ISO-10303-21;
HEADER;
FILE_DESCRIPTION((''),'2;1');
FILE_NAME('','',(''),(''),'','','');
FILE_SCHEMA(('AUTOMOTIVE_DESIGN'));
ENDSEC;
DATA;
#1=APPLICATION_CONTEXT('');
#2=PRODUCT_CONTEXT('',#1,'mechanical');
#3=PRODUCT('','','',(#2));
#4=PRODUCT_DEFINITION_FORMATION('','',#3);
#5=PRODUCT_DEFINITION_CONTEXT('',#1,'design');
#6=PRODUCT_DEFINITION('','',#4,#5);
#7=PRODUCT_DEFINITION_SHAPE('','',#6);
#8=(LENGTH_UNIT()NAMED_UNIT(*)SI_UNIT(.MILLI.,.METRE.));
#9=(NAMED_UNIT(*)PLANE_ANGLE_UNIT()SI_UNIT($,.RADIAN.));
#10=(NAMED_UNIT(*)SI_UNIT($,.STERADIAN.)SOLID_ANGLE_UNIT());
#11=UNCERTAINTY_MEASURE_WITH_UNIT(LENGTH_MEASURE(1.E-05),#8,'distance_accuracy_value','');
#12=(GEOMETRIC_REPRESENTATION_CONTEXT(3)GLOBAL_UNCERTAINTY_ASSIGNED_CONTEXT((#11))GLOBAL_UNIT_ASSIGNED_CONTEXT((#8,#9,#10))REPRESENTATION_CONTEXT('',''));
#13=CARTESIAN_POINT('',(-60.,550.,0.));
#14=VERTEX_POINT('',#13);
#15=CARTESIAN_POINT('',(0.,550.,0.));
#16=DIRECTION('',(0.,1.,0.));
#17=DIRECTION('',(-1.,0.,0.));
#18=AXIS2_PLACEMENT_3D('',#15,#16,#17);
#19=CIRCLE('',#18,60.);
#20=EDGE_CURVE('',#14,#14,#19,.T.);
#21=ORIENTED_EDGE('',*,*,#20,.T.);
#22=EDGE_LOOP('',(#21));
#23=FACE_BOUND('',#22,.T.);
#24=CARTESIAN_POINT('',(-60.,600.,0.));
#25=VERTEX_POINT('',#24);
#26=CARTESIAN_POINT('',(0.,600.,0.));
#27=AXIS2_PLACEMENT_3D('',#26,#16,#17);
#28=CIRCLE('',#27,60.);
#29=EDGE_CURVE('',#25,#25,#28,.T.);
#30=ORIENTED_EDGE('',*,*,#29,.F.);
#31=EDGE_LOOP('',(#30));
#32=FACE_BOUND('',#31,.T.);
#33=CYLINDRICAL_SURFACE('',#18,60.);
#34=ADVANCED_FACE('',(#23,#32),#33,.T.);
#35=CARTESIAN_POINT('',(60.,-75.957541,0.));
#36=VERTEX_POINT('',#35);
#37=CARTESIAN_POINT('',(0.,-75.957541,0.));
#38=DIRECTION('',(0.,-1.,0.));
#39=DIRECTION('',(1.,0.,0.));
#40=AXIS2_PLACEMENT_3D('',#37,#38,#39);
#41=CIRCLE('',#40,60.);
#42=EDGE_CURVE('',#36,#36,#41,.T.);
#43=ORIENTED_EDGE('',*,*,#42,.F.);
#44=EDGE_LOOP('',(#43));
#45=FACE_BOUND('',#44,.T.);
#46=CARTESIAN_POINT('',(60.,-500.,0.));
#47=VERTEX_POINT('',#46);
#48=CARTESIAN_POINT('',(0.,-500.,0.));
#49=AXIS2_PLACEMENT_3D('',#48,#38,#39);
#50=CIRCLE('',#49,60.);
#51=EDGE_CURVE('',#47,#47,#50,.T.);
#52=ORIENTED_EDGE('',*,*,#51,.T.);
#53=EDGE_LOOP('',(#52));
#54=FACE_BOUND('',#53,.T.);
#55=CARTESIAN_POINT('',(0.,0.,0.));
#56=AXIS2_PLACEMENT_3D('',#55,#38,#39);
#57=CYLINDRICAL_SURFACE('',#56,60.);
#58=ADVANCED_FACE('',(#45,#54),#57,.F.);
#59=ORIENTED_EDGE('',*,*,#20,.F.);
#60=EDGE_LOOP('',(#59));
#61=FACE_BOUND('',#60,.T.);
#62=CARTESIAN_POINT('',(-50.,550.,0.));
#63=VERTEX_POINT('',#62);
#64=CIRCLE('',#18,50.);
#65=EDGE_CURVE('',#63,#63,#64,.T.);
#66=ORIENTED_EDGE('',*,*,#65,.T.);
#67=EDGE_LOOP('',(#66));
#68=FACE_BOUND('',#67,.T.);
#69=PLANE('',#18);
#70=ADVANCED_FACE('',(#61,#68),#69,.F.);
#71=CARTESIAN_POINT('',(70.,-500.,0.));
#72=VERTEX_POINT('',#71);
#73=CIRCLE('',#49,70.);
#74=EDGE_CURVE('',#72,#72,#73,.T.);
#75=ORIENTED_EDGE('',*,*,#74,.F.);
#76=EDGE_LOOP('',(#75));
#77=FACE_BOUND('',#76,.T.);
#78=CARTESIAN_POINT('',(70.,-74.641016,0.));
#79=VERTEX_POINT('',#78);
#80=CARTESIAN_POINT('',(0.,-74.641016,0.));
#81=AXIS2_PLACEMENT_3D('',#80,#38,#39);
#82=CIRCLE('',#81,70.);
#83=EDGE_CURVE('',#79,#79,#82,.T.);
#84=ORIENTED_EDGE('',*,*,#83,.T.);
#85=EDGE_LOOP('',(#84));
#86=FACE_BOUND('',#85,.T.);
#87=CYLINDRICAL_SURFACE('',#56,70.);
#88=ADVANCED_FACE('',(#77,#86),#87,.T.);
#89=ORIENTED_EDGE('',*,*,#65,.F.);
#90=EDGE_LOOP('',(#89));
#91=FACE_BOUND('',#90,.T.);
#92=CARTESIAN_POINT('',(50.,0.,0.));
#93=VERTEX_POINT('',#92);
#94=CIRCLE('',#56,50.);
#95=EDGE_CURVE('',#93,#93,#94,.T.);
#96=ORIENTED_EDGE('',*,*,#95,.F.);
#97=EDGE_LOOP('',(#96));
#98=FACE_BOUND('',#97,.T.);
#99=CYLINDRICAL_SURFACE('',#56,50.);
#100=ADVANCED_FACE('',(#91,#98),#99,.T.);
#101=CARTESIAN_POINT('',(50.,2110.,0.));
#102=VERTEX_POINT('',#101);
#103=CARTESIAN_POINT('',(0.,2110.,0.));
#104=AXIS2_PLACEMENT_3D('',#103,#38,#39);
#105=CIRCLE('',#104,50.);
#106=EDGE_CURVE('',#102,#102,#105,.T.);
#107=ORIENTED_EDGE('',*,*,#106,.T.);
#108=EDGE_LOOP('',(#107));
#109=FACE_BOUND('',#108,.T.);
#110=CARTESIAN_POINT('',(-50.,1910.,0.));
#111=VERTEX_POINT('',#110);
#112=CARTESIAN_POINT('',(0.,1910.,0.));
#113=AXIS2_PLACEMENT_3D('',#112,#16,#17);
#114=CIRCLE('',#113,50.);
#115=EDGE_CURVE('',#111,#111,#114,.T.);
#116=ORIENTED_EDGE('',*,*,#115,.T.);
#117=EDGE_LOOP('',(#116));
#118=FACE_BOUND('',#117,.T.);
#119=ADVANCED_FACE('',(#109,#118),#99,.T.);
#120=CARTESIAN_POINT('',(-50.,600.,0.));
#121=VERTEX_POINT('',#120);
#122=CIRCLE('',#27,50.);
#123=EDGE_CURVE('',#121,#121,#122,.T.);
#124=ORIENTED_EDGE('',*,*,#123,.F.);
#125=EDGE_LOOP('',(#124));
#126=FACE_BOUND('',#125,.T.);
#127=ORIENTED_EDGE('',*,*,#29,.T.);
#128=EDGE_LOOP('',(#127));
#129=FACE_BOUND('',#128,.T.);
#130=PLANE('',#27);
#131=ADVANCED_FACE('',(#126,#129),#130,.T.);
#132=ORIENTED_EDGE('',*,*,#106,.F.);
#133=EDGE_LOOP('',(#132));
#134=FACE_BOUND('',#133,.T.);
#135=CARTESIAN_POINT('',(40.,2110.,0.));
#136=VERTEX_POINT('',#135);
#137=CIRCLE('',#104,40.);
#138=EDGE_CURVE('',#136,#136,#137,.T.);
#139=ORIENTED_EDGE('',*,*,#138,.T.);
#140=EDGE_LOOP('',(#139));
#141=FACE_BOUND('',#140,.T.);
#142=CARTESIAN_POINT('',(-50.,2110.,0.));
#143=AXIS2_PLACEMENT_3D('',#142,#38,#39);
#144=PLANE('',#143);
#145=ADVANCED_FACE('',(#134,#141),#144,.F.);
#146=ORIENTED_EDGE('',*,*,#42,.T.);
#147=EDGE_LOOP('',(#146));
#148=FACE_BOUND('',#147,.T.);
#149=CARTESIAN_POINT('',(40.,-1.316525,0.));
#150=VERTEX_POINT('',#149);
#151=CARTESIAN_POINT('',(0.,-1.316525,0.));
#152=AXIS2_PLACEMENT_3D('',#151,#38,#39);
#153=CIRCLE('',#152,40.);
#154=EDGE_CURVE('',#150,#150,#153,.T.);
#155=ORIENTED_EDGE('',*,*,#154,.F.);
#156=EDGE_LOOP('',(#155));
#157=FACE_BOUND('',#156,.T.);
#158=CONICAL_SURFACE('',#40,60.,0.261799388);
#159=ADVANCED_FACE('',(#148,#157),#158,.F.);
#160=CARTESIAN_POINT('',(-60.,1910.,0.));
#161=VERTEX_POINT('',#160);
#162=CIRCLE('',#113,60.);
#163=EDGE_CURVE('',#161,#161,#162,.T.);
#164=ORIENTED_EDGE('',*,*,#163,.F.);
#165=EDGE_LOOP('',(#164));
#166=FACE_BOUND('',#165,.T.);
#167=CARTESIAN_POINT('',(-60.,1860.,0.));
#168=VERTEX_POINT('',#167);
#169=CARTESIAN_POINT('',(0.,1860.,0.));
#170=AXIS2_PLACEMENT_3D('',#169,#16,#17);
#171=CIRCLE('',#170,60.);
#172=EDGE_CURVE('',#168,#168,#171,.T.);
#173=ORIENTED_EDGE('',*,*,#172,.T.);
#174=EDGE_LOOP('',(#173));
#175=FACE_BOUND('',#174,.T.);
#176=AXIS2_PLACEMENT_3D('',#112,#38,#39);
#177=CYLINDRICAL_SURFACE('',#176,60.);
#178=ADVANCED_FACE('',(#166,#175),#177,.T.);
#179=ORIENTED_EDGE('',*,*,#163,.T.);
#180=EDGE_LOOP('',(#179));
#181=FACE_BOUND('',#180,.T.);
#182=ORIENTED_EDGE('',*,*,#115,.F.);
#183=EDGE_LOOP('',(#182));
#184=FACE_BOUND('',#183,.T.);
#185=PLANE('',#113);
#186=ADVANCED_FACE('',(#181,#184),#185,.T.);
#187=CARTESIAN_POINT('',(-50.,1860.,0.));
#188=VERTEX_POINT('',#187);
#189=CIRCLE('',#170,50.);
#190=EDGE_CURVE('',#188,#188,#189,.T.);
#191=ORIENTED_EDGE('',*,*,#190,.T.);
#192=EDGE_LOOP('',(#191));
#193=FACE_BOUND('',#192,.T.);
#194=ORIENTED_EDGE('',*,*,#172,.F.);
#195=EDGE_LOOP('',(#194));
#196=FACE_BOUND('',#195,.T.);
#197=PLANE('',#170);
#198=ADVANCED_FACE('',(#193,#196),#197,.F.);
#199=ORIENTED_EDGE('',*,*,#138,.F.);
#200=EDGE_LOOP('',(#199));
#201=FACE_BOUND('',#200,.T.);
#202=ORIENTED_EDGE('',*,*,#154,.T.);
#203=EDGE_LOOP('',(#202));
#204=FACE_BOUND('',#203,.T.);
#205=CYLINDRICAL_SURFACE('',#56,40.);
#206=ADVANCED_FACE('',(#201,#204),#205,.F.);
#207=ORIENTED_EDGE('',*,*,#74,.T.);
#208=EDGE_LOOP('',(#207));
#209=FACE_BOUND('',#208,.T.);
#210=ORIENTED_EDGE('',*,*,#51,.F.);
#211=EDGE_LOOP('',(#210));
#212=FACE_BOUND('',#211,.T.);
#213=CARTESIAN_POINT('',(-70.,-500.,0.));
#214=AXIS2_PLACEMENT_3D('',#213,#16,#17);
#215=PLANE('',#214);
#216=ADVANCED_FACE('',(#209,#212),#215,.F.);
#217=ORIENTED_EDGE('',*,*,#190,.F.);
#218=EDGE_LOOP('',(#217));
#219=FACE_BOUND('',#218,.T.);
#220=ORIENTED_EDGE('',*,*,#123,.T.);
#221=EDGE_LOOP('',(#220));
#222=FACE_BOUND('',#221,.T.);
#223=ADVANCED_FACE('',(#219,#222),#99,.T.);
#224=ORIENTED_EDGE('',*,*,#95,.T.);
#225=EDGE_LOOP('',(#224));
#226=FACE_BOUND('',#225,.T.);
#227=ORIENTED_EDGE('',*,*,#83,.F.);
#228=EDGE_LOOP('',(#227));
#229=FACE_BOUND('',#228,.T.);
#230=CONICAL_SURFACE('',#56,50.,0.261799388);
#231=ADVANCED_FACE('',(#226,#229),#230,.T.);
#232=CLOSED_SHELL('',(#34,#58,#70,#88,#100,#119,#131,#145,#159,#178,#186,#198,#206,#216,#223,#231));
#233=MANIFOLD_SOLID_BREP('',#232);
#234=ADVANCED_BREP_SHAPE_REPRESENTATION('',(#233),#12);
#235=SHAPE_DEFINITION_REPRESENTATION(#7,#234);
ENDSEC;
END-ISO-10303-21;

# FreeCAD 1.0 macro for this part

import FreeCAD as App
import Part
import Sketcher
from FreeCAD import Vector
Q = App.Units.Quantity


def add_polygon(sketch, points):
    """Adds a closed chain of lines whose ends are joined by coincident constraints."""
    first, n = sketch.GeometryCount, len(points)
    for a, b in zip(points, points[1:] + points[:1]):
        sketch.addGeometry(Part.LineSegment(App.Vector(*a, 0), App.Vector(*b, 0)), False)
    for i in range(n):
        sketch.addConstraint(Sketcher.Constraint("Coincident", first + i, 2, first + (i + 1) % n, 1))

doc = App.newDocument("Part")
params = doc.addObject("Spreadsheet::Sheet", "Params")
for row, (alias, value) in enumerate([
    ("sketch1_width", "10 mm"),
    ("sketch1_height", "2110 mm"),
    ("revolution_angle", "360 deg"),
    ("sketch2_diameter", "120 mm"),
    ("sketch2_diameter2", "80 mm"),
    ("pad1_length", "50 mm"),
    ("sketch3_diameter", "120 mm"),
    ("sketch3_diameter2", "80 mm"),
    ("pad2_length", "50 mm"),
], start=1):
    params.set(f"A{row}", alias)
    params.set(f"B{row}", "=" + value)
    params.setAlias(f"B{row}", alias)

body = doc.addObject("PartDesign::Body", "Body")

# Sketch on XY plane
sketch1 = body.newObject("Sketcher::SketchObject", "Sketch")
sketch1.AttachmentSupport = (doc.getObject("XY_Plane"), [""])
sketch1.MapMode = "FlatFace"
add_polygon(sketch1, [(-70, -75), (-70, -500), (-60, -500), (-60, -76), (-40, -1), (-40, 2110), (-50, 2110), (-50, 0)])  # lines 0-7
sketch1.addConstraint(Sketcher.Constraint("Vertical", 0))
sketch1.addConstraint(Sketcher.Constraint("Horizontal", 1))
sketch1.addConstraint(Sketcher.Constraint("Vertical", 2))
sketch1.addConstraint(Sketcher.Constraint("Vertical", 4))
sketch1.addConstraint(Sketcher.Constraint("Horizontal", 5))
sketch1.addConstraint(Sketcher.Constraint("Vertical", 6))
sketch1.addConstraint(Sketcher.Constraint("PointOnObject", 6, 2, -1))
sketch1.addConstraint(Sketcher.Constraint("Parallel", 3, 7))
sketch1.addConstraint(Sketcher.Constraint("Equal", 1, 5))
sketch1.addConstraint(Sketcher.Constraint("DistanceX", 1, 1, 1, 2, 10.0))
sketch1.addConstraint(Sketcher.Constraint("DistanceY", 6, 2, 6, 1, 2110.0))
sketch1.addConstraint(Sketcher.Constraint("Angle", 3, Q("75 deg")))
sketch1.addConstraint(Sketcher.Constraint("DistanceX", 0, 2, -1, 1, 70.0))
sketch1.addConstraint(Sketcher.Constraint("DistanceY", 0, 2, -1, 1, 500.0))
sketch1.addConstraint(Sketcher.Constraint("DistanceX", 3, 2, -1, 1, 40.0))
sketch1.addConstraint(Sketcher.Constraint("DistanceY", 2, 1, 2, 2, 424.042459))
sketch1.setExpression("Constraints[17]", "Params.sketch1_width")
sketch1.setExpression("Constraints[18]", "Params.sketch1_height")
revolution = body.newObject("PartDesign::Revolution", "Revolution")
revolution.Profile = sketch1
revolution.ReferenceAxis = (sketch1, ["V_Axis"])
revolution.setExpression("Angle", "Params.revolution_angle")

# Sketch on XZ plane
sketch2 = body.newObject("Sketcher::SketchObject", "Sketch001")
sketch2.AttachmentSupport = (doc.getObject("XZ_Plane"), [""])
sketch2.MapMode = "FlatFace"
sketch2.AttachmentOffset = App.Placement(Vector(0, 0, -1860), App.Rotation())
sketch2.addGeometry(Part.Circle(Vector(0, 0, 0), Vector(0, 0, 1), 60), False)
sketch2.addGeometry(Part.Circle(Vector(0, 0, 0), Vector(0, 0, 1), 40), False)
sketch2.addConstraint(Sketcher.Constraint("Coincident", 0, 3, -1, 1))
sketch2.addConstraint(Sketcher.Constraint("Coincident", 1, 3, -1, 1))
sketch2.addConstraint(Sketcher.Constraint("Diameter", 0, 120.0))
sketch2.addConstraint(Sketcher.Constraint("Diameter", 1, 80.0))
sketch2.setExpression("Constraints[2]", "Params.sketch2_diameter")
sketch2.setExpression("Constraints[3]", "Params.sketch2_diameter2")
pad1 = body.newObject("PartDesign::Pad", "Pad")
pad1.Profile = sketch2
pad1.setExpression("Length", "Params.pad1_length")
pad1.Reversed = True

# Sketch on XZ plane
sketch3 = body.newObject("Sketcher::SketchObject", "Sketch002")
sketch3.AttachmentSupport = (doc.getObject("XZ_Plane"), [""])
sketch3.MapMode = "FlatFace"
sketch3.AttachmentOffset = App.Placement(Vector(0, 0, -600), App.Rotation())
sketch3.addGeometry(Part.Circle(Vector(0, 0, 0), Vector(0, 0, 1), 60), False)
sketch3.addGeometry(Part.Circle(Vector(0, 0, 0), Vector(0, 0, 1), 40), False)
sketch3.addConstraint(Sketcher.Constraint("Coincident", 0, 3, -1, 1))
sketch3.addConstraint(Sketcher.Constraint("Coincident", 1, 3, -1, 1))
sketch3.addConstraint(Sketcher.Constraint("Diameter", 0, 120.0))
sketch3.addConstraint(Sketcher.Constraint("Diameter", 1, 80.0))
sketch3.setExpression("Constraints[2]", "Params.sketch3_diameter")
sketch3.setExpression("Constraints[3]", "Params.sketch3_diameter2")
pad2 = body.newObject("PartDesign::Pad", "Pad001")
pad2.Profile = sketch3
pad2.setExpression("Length", "Params.pad2_length")

doc.recompute()
